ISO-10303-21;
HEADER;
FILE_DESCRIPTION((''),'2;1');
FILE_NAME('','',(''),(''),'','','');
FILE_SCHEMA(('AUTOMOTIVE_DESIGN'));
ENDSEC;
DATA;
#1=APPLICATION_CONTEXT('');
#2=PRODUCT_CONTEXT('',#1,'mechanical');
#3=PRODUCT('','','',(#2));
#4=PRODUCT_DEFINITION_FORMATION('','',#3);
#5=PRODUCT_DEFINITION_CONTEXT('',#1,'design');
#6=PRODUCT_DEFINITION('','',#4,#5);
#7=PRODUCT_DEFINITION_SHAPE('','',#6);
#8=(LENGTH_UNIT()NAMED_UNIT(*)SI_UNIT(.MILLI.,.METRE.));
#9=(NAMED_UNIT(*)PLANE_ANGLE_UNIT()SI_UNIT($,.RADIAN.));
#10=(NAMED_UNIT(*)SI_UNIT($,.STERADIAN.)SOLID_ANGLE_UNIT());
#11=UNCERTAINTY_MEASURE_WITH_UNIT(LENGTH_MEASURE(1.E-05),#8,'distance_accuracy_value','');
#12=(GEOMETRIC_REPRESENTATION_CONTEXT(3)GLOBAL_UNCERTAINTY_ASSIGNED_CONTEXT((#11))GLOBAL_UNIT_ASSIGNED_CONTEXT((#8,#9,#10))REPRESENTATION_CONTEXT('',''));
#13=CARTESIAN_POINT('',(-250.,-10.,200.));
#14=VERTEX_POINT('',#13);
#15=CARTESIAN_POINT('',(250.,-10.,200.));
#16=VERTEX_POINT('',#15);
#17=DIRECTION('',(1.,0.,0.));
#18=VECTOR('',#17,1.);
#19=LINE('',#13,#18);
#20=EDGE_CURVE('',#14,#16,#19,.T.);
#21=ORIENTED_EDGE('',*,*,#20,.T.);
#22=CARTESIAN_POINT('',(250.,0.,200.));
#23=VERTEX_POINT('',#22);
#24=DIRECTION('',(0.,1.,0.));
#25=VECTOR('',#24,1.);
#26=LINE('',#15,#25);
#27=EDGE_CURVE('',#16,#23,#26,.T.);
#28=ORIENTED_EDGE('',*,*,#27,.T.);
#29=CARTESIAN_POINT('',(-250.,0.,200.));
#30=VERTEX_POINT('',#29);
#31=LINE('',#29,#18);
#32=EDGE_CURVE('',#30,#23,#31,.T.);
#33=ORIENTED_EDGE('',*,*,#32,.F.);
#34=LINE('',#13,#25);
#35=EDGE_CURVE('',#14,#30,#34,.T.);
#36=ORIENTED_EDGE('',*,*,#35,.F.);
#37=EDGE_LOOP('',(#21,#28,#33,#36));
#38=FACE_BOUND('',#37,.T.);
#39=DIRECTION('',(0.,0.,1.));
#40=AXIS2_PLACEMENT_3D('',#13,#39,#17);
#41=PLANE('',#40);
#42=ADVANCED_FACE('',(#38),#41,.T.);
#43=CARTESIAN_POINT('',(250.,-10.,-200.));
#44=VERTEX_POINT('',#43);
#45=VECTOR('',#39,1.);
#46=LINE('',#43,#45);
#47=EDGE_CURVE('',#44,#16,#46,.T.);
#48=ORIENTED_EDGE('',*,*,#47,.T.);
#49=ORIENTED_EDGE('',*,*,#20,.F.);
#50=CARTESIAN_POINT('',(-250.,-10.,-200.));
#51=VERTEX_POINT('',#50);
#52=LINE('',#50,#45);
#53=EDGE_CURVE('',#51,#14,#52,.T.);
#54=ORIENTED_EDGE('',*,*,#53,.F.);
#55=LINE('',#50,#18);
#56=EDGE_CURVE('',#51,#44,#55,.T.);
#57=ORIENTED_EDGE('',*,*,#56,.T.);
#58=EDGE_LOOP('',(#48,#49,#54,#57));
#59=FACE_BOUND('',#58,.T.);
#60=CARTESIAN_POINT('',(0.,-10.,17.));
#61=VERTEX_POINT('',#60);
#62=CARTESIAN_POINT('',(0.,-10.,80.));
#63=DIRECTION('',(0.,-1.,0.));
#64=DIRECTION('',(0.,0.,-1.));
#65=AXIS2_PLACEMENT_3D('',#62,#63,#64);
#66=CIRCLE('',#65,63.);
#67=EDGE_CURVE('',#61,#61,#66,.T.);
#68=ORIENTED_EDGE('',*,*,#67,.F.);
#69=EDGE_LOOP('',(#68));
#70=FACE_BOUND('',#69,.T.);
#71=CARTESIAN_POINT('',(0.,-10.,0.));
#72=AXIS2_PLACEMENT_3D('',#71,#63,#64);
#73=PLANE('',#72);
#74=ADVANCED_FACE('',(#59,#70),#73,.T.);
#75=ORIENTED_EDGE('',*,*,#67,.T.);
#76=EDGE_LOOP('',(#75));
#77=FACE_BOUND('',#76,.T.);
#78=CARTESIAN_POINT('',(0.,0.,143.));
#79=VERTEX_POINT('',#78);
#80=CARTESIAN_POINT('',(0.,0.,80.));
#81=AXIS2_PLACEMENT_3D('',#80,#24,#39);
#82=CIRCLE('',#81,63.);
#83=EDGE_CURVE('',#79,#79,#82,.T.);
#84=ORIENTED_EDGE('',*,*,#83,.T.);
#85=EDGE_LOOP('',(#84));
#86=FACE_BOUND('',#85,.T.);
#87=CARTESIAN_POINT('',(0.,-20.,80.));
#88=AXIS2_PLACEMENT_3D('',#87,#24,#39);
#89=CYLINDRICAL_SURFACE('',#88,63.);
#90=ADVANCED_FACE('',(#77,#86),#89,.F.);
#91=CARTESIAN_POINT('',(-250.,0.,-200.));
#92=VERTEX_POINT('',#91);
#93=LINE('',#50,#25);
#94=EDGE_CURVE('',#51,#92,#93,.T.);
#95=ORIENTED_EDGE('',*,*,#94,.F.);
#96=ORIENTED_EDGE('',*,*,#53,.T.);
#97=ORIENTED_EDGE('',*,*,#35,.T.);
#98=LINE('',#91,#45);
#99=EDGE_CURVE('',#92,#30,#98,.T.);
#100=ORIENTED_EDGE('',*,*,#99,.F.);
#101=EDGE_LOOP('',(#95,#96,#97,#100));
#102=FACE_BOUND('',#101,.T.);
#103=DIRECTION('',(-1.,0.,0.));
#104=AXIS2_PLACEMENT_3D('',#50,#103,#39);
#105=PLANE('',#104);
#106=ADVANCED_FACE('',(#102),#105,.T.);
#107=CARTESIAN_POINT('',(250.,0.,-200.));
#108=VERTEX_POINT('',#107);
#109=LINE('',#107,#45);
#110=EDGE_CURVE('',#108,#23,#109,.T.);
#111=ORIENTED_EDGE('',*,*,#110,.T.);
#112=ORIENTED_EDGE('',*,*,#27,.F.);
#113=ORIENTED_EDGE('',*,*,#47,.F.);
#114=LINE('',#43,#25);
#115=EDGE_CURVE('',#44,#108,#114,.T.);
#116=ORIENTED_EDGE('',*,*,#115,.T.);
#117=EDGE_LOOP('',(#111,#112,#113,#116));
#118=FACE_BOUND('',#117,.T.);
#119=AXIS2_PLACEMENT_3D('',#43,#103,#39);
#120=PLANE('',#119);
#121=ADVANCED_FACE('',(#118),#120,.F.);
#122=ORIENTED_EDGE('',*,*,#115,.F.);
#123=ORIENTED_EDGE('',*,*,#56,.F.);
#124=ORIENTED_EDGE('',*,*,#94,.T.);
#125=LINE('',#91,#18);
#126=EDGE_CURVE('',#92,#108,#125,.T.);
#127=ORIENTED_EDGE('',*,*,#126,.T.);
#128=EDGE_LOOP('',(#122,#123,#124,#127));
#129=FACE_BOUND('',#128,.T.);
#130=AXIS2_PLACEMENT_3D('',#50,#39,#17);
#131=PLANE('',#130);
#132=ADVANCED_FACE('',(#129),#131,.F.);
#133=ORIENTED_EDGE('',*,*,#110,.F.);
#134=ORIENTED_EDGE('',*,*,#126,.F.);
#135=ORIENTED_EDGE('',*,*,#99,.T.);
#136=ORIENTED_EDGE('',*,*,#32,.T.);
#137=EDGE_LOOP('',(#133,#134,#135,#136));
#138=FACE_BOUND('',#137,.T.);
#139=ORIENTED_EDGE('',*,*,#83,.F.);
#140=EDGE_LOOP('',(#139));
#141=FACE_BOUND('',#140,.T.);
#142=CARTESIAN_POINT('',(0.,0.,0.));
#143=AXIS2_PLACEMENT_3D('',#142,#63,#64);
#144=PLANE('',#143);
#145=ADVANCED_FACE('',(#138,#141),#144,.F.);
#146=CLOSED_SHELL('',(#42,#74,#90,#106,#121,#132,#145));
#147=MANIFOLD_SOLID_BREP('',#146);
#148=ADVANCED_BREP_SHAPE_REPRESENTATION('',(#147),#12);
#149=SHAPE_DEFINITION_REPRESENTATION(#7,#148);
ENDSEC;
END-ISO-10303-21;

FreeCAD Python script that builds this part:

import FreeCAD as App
import Part
import Sketcher


def add_polygon(sketch, points):
    """Adds a closed chain of lines whose ends are joined by coincident constraints."""
    first, n = sketch.GeometryCount, len(points)
    for a, b in zip(points, points[1:] + points[:1]):
        sketch.addGeometry(Part.LineSegment(App.Vector(*a, 0), App.Vector(*b, 0)), False)
    for i in range(n):
        sketch.addConstraint(Sketcher.Constraint("Coincident", first + i, 2, first + (i + 1) % n, 1))

doc = App.newDocument("Part")
body = doc.addObject("PartDesign::Body", "Body")

# Sketch on XZ plane
sketch1 = body.newObject("Sketcher::SketchObject", "Sketch")
sketch1.AttachmentSupport = (doc.getObject("XZ_Plane"), [""])
sketch1.MapMode = "FlatFace"
add_polygon(sketch1, [(-250, -200), (-250, 200), (250, 200), (250, -200)])  # lines 0-3
sketch1.addConstraint([
    Sketcher.Constraint("Vertical", 0),
    Sketcher.Constraint("Horizontal", 1),
    Sketcher.Constraint("Vertical", 2),
    Sketcher.Constraint("Horizontal", 3),
    Sketcher.Constraint("Symmetric", 0, 2, 2, 2, -1, 1),
    Sketcher.Constraint("DistanceX", 1, 1, 1, 2, 500.0),
    Sketcher.Constraint("DistanceY", 0, 1, 0, 2, 400.0),
])
pad1 = body.newObject("PartDesign::Pad", "Pad")
pad1.Profile = sketch1
pad1.Length = 10

# Sketch on XZ plane
sketch2 = body.newObject("Sketcher::SketchObject", "Sketch001")
sketch2.AttachmentSupport = (doc.getObject("XZ_Plane"), [""])
sketch2.MapMode = "FlatFace"
sketch2.addGeometry(Part.Circle(App.Vector(0, 80, 0), App.Vector(0, 0, 1), 63), False)
sketch2.addConstraint([
    Sketcher.Constraint("PointOnObject", 0, 3, -2),
    Sketcher.Constraint("Diameter", 0, 126.0),
    Sketcher.Constraint("DistanceY", -1, 1, 0, 3, 80.0),
])
pocket1 = body.newObject("PartDesign::Pocket", "Pocket")
pocket1.Profile = sketch2
pocket1.Length = 20
pocket1.Reversed = True

doc.recompute()
